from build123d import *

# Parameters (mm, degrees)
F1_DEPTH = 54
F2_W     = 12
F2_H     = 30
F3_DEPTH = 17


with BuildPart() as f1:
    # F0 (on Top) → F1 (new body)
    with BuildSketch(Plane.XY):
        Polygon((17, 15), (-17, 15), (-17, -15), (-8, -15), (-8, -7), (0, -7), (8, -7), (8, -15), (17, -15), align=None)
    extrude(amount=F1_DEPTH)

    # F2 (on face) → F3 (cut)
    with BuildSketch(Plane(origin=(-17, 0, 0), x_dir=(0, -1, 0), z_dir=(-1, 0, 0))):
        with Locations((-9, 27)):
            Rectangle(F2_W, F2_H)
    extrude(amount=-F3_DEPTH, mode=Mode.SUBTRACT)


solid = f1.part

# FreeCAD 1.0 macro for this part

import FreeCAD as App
import Part
import Sketcher

V = App.Vector


def add_polygon(sketch, points):
    """Adds a closed chain of lines whose ends are joined by coincident constraints."""
    first, n = sketch.GeometryCount, len(points)
    for a, b in zip(points, points[1:] + points[:1]):
        sketch.addGeometry(Part.LineSegment(App.Vector(*a, 0), App.Vector(*b, 0)), False)
    for i in range(n):
        sketch.addConstraint(Sketcher.Constraint("Coincident", first + i, 2, first + (i + 1) % n, 1))

doc = App.newDocument("Part")
body = doc.addObject("PartDesign::Body", "Body")

sketch1 = doc.addObject("Sketcher::SketchObject", "Sketch")
body.addObject(sketch1)
sketch1.AttachmentSupport = (doc.XY_Plane, [""])
sketch1.MapMode = "FlatFace"
add_polygon(sketch1, [(17, 15), (-17, 15), (-17, -15), (-8, -15), (-8, -7), (8, -7), (8, -15), (17, -15)])
sketch1.addConstraint([
    Sketcher.Constraint("Horizontal", 0),
    Sketcher.Constraint("Vertical", 1),
    Sketcher.Constraint("Horizontal", 2),
    Sketcher.Constraint("Vertical", 3),
    Sketcher.Constraint("Horizontal", 4),
    Sketcher.Constraint("Vertical", 5),
    Sketcher.Constraint("Horizontal", 6),
    Sketcher.Constraint("Vertical", 7),
    Sketcher.Constraint("Symmetric", 0, 2, 6, 2, -1, 1),
    Sketcher.Constraint("Symmetric", 2, 2, 5, 2, -2),
    Sketcher.Constraint("DistanceX", 0, 2, 0, 1, 34.0),
    Sketcher.Constraint("DistanceX", 2, 1, 2, 2, 9.0),
    Sketcher.Constraint("DistanceY", 1, 2, 1, 1, 30.0),
    Sketcher.Constraint("DistanceY", 3, 1, 3, 2, 8.0),
])
pad1 = doc.addObject("PartDesign::Pad", "Pad")
body.addObject(pad1)
pad1.Profile = sketch1
pad1.Length = 54

sketch2 = doc.addObject("Sketcher::SketchObject", "Sketch001")
body.addObject(sketch2)
sketch2.AttachmentSupport = (doc.YZ_Plane, [""])
sketch2.MapMode = "FlatFace"
sketch2.AttachmentOffset = App.Placement(V(0, 0, -17), App.Rotation())
add_polygon(sketch2, [(15, 42), (15, 12), (3, 12), (3, 42)])
sketch2.addConstraint([
    Sketcher.Constraint("Vertical", 0),
    Sketcher.Constraint("Horizontal", 1),
    Sketcher.Constraint("Vertical", 2),
    Sketcher.Constraint("Horizontal", 3),
    Sketcher.Constraint("DistanceX", 1, 2, 1, 1, 12.0),
    Sketcher.Constraint("DistanceY", 0, 2, 0, 1, 30.0),
    Sketcher.Constraint("DistanceX", -1, 1, 0, 2, 15.0),
    Sketcher.Constraint("DistanceY", -1, 1, 0, 2, 12.0),
])
pocket1 = doc.addObject("PartDesign::Pocket", "Pocket")
body.addObject(pocket1)
pocket1.Profile = sketch2
pocket1.Length = 17
pocket1.Reversed = True

doc.recompute()
